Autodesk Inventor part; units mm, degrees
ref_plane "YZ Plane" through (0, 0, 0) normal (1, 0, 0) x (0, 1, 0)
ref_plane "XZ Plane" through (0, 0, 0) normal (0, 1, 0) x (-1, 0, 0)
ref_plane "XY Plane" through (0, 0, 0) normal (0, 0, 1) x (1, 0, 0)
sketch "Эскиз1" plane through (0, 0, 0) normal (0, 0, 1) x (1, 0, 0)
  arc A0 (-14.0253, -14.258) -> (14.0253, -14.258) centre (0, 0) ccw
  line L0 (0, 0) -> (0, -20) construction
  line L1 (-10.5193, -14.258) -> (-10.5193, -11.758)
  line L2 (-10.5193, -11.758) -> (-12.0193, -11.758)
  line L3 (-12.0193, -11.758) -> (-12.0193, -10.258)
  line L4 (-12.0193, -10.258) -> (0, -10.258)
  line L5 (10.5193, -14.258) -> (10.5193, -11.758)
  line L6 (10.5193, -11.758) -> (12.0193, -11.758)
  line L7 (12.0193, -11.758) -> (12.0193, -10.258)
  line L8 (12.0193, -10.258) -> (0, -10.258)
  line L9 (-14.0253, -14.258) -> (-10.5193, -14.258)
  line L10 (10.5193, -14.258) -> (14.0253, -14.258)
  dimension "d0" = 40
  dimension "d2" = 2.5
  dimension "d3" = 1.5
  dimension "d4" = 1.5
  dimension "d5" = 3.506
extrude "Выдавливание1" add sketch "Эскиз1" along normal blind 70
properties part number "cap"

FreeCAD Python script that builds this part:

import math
import FreeCAD as App
import Part
import Sketcher
from FreeCAD import Vector
Q = App.Units.Quantity

doc = App.newDocument("Part")
body = doc.addObject("PartDesign::Body", "Body")

sketch1 = doc.addObject("Sketcher::SketchObject", "Sketch")
body.addObject(sketch1)
sketch1.AttachmentSupport = (doc.XY_Plane, [""])
sketch1.MapMode = "FlatFace"
sketch1.addGeometry([
    Part.LineSegment(Vector(-10.5, -14.3, 0), Vector(-14, -14.3, 0)),
    Part.ArcOfCircle(Part.Circle(Vector(0, 0, 0), Vector(0, 0, 1), 20), math.radians(-135), math.radians(-45)),
    Part.LineSegment(Vector(14, -14.3, 0), Vector(10.5, -14.3, 0)),
    Part.LineSegment(Vector(10.5, -14.3, 0), Vector(10.5, -11.8, 0)),
    Part.LineSegment(Vector(10.5, -11.8, 0), Vector(12, -11.8, 0)),
    Part.LineSegment(Vector(12, -11.8, 0), Vector(12, -10.3, 0)),
    Part.LineSegment(Vector(12, -10.3, 0), Vector(-12, -10.3, 0)),
    Part.LineSegment(Vector(-12, -10.3, 0), Vector(-12, -11.8, 0)),
    Part.LineSegment(Vector(-12, -11.8, 0), Vector(-10.5, -11.8, 0)),
    Part.LineSegment(Vector(-10.5, -11.8, 0), Vector(-10.5, -14.3, 0)),
], False)
sketch1.addConstraint([
    Sketcher.Constraint("Coincident", 0, 2, 1, 1),
    Sketcher.Constraint("Coincident", 1, 2, 2, 1),
    Sketcher.Constraint("Coincident", 2, 2, 3, 1),
    Sketcher.Constraint("Coincident", 3, 2, 4, 1),
    Sketcher.Constraint("Coincident", 4, 2, 5, 1),
    Sketcher.Constraint("Coincident", 5, 2, 6, 1),
    Sketcher.Constraint("Coincident", 6, 2, 7, 1),
    Sketcher.Constraint("Coincident", 7, 2, 8, 1),
    Sketcher.Constraint("Coincident", 8, 2, 9, 1),
    Sketcher.Constraint("Coincident", 9, 2, 0, 1),
    Sketcher.Constraint("Horizontal", 0),
    Sketcher.Constraint("Horizontal", 2),
    Sketcher.Constraint("Vertical", 3),
    Sketcher.Constraint("Horizontal", 4),
    Sketcher.Constraint("Vertical", 5),
    Sketcher.Constraint("Horizontal", 6),
    Sketcher.Constraint("Vertical", 7),
    Sketcher.Constraint("Horizontal", 8),
    Sketcher.Constraint("Vertical", 9),
    Sketcher.Constraint("Coincident", 1, 3, -1, 1),
    Sketcher.Constraint("Symmetric", 4, 2, 7, 2, -2),
    Sketcher.Constraint("Symmetric", 2, 2, 9, 2, -2),
    Sketcher.Constraint("Equal", 8, 5),
    Sketcher.Constraint("Radius", 1, Q("20 mm")),
    Sketcher.Constraint("DistanceX", 4, 1, 4, 2, Q("1.5 mm")),
    Sketcher.Constraint("DistanceY", 3, 1, 3, 2, Q("2.5 mm")),
    Sketcher.Constraint("DistanceX", 0, 2, 0, 1, Q("3.506 mm")),
    Sketcher.Constraint("DistanceX", 6, 2, 6, 1, Q("24.0386 mm")),
])
pad1 = doc.addObject("PartDesign::Pad", "Pad")
body.addObject(pad1)
pad1.Profile = sketch1
pad1.Length = 70

doc.recompute()
